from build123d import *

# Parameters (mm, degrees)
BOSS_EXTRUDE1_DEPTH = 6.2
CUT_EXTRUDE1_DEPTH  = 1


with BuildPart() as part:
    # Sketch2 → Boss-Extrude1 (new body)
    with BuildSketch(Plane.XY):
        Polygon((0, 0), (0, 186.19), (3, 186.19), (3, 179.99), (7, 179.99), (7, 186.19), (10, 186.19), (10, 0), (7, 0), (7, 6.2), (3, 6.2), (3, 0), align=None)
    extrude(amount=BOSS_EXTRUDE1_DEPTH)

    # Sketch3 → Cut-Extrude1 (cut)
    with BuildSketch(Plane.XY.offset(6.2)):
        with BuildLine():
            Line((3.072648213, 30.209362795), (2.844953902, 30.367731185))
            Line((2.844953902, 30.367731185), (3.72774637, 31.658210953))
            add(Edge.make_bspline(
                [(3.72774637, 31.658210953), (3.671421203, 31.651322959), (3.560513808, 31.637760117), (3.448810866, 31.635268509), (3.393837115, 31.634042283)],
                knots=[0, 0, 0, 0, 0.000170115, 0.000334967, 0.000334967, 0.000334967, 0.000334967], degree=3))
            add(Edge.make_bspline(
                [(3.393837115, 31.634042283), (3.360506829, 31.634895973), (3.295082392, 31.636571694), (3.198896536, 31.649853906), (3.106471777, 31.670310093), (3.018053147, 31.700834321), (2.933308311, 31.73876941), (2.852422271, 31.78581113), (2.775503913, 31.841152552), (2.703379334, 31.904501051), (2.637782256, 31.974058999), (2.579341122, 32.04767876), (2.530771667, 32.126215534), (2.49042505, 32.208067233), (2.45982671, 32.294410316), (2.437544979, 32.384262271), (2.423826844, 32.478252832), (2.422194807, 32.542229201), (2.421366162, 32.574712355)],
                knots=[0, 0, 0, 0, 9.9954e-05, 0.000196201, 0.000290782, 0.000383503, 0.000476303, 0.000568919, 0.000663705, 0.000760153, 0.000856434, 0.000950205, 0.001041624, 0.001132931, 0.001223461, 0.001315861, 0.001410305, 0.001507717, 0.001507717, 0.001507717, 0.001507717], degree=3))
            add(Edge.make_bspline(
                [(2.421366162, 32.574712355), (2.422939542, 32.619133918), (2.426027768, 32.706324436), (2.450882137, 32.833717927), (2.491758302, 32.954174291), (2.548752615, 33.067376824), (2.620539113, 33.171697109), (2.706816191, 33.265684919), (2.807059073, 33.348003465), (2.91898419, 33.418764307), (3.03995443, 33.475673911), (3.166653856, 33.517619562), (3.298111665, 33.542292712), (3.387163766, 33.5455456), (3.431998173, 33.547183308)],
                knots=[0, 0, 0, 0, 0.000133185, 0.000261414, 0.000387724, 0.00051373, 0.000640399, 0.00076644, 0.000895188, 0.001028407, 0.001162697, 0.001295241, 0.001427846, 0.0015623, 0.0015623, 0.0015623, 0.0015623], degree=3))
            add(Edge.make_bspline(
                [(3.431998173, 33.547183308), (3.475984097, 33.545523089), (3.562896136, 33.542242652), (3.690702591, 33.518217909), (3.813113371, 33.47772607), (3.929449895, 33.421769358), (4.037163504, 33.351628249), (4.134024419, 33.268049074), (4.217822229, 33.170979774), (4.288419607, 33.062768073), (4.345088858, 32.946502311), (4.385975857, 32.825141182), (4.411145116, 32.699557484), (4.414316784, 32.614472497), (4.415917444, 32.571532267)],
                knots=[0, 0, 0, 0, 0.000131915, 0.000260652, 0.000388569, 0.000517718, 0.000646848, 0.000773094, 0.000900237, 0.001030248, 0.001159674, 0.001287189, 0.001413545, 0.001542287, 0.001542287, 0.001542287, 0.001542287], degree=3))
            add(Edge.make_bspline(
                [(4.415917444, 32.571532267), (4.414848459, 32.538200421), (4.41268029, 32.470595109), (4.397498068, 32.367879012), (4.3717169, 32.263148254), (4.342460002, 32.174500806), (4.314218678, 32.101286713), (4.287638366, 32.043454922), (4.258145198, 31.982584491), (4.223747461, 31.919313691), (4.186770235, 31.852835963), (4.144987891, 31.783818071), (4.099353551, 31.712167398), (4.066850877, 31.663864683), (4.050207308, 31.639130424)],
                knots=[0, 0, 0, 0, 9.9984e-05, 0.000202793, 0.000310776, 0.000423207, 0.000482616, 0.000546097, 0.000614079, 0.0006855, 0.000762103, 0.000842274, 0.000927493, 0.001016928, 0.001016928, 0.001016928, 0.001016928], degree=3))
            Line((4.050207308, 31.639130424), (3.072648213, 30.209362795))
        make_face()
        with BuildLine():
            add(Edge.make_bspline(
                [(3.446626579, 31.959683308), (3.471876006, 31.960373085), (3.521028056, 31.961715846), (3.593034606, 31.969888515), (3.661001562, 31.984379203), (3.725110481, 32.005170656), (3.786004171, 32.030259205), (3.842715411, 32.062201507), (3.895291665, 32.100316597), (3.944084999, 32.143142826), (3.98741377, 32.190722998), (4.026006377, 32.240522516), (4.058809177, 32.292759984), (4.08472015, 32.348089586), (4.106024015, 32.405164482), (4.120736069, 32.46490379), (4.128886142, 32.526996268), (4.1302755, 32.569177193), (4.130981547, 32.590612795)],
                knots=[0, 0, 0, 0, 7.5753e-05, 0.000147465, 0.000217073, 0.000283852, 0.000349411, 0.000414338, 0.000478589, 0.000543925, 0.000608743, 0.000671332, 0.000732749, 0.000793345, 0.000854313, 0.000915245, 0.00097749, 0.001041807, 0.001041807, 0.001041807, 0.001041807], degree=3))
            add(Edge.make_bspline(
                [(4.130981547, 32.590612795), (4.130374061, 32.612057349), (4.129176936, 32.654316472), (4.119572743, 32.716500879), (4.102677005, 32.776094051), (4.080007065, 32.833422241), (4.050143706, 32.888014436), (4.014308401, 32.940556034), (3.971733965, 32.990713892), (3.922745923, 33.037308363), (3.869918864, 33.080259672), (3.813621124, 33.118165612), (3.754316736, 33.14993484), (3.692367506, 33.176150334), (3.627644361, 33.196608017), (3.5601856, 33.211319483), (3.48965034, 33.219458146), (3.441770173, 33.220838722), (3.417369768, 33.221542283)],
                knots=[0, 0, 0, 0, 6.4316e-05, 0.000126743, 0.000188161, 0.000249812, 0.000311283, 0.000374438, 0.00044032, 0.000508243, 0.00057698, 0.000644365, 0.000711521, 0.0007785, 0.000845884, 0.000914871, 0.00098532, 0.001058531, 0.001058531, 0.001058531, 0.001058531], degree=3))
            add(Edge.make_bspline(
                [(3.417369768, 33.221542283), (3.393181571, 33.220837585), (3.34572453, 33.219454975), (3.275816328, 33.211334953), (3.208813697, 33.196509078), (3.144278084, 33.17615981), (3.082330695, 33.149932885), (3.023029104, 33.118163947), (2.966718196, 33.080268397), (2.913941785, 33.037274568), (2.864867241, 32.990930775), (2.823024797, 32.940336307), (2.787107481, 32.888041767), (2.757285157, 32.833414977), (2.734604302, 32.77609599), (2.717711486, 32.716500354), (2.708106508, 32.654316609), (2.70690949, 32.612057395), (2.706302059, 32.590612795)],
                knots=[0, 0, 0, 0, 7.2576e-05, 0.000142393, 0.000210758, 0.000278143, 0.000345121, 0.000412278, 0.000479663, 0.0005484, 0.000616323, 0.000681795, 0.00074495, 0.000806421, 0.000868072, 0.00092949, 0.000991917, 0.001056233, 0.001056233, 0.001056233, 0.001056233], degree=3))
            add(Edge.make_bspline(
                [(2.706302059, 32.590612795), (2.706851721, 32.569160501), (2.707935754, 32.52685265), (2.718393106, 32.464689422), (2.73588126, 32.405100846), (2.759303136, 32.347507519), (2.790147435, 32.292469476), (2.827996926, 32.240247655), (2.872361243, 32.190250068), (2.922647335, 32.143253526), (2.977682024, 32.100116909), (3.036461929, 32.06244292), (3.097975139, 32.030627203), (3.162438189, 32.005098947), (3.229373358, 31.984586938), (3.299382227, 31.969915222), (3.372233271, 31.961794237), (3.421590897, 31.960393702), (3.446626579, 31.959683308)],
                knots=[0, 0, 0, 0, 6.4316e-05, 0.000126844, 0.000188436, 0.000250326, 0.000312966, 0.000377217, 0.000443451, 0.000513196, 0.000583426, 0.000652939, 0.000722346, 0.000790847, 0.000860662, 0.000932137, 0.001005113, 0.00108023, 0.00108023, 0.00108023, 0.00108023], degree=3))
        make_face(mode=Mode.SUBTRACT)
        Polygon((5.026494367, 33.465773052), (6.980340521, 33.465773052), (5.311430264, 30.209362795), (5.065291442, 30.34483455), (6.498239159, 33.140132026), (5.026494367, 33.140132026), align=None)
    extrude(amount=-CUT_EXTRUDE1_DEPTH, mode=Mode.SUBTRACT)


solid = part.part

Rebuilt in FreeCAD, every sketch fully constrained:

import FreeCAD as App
import Part
import Sketcher
Q = App.Units.Quantity

doc = App.newDocument("Part")
params = doc.addObject("Spreadsheet::Sheet", "Params")
for row, (alias, value) in enumerate([
    ("sketch1_width", "3 mm"),
    ("sketch1_width2", "4 mm"),
    ("sketch1_height", "6.2 mm"),
    ("sketch1_height2", "186.19 mm"),
    ("pad1_length", "6.2 mm"),
    ("pocket1_length", "1 mm"),
], start=1):
    params.set(f"A{row}", alias)
    params.set(f"B{row}", "=" + value)
    params.setAlias(f"B{row}", alias)

body = doc.addObject("PartDesign::Body", "Body")

# Sketch on XY plane
sketch1 = body.newObject("Sketcher::SketchObject", "Sketch")
sketch1.AttachmentSupport = (doc.getObject("XY_Plane"), [""])
sketch1.MapMode = "FlatFace"
sketch1.addGeometry(Part.LineSegment(App.Vector(0, 186.2, 0), App.Vector(0, 0, 0)), False)
sketch1.addGeometry(Part.LineSegment(App.Vector(0, 0, 0), App.Vector(3, 0, 0)), False)
sketch1.addGeometry(Part.LineSegment(App.Vector(3, 0, 0), App.Vector(3, 6.2, 0)), False)
sketch1.addGeometry(Part.LineSegment(App.Vector(3, 6.2, 0), App.Vector(7, 6.2, 0)), False)
sketch1.addGeometry(Part.LineSegment(App.Vector(7, 6.2, 0), App.Vector(7, 0, 0)), False)
sketch1.addGeometry(Part.LineSegment(App.Vector(7, 0, 0), App.Vector(10, 0, 0)), False)
sketch1.addGeometry(Part.LineSegment(App.Vector(10, 0, 0), App.Vector(10, 186.2, 0)), False)
sketch1.addGeometry(Part.LineSegment(App.Vector(10, 186.2, 0), App.Vector(7, 186.2, 0)), False)
sketch1.addGeometry(Part.LineSegment(App.Vector(7, 186.2, 0), App.Vector(7, 180, 0)), False)
sketch1.addGeometry(Part.LineSegment(App.Vector(7, 180, 0), App.Vector(3, 180, 0)), False)
sketch1.addGeometry(Part.LineSegment(App.Vector(3, 180, 0), App.Vector(3, 186.2, 0)), False)
sketch1.addGeometry(Part.LineSegment(App.Vector(3, 186.2, 0), App.Vector(0, 186.2, 0)), False)
sketch1.addConstraint(Sketcher.Constraint("Coincident", 0, 2, 1, 1))
sketch1.addConstraint(Sketcher.Constraint("Coincident", 1, 2, 2, 1))
sketch1.addConstraint(Sketcher.Constraint("Coincident", 2, 2, 3, 1))
sketch1.addConstraint(Sketcher.Constraint("Coincident", 3, 2, 4, 1))
sketch1.addConstraint(Sketcher.Constraint("Coincident", 4, 2, 5, 1))
sketch1.addConstraint(Sketcher.Constraint("Coincident", 5, 2, 6, 1))
sketch1.addConstraint(Sketcher.Constraint("Coincident", 6, 2, 7, 1))
sketch1.addConstraint(Sketcher.Constraint("Coincident", 7, 2, 8, 1))
sketch1.addConstraint(Sketcher.Constraint("Coincident", 8, 2, 9, 1))
sketch1.addConstraint(Sketcher.Constraint("Coincident", 9, 2, 10, 1))
sketch1.addConstraint(Sketcher.Constraint("Coincident", 10, 2, 11, 1))
sketch1.addConstraint(Sketcher.Constraint("Coincident", 11, 2, 0, 1))
sketch1.addConstraint(Sketcher.Constraint("Vertical", 0))
sketch1.addConstraint(Sketcher.Constraint("Horizontal", 1))
sketch1.addConstraint(Sketcher.Constraint("Vertical", 2))
sketch1.addConstraint(Sketcher.Constraint("Horizontal", 3))
sketch1.addConstraint(Sketcher.Constraint("Vertical", 4))
sketch1.addConstraint(Sketcher.Constraint("Horizontal", 5))
sketch1.addConstraint(Sketcher.Constraint("Vertical", 6))
sketch1.addConstraint(Sketcher.Constraint("Horizontal", 7))
sketch1.addConstraint(Sketcher.Constraint("Vertical", 8))
sketch1.addConstraint(Sketcher.Constraint("Horizontal", 9))
sketch1.addConstraint(Sketcher.Constraint("Vertical", 10))
sketch1.addConstraint(Sketcher.Constraint("Horizontal", 11))
sketch1.addConstraint(Sketcher.Constraint("Coincident", 0, 2, -1, 1))
sketch1.addConstraint(Sketcher.Constraint("PointOnObject", 4, 2, -1))
sketch1.addConstraint(Sketcher.Constraint("Horizontal", 7, 2, 10, 2))
sketch1.addConstraint(Sketcher.Constraint("Vertical", 4, 2, 7, 2))
sketch1.addConstraint(Sketcher.Constraint("Vertical", 2, 2, 9, 2))
sketch1.addConstraint(Sketcher.Constraint("Equal", 1, 5))
sketch1.addConstraint(Sketcher.Constraint("Equal", 4, 8))
sketch1.addConstraint(Sketcher.Constraint("DistanceX", 1, 1, 1, 2, Q("3 mm")))
sketch1.addConstraint(Sketcher.Constraint("DistanceX", 3, 1, 3, 2, Q("4 mm")))
sketch1.addConstraint(Sketcher.Constraint("DistanceY", 2, 1, 2, 2, Q("6.2 mm")))
sketch1.addConstraint(Sketcher.Constraint("DistanceY", 0, 2, 0, 1, Q("186.19 mm")))
sketch1.setExpression("Constraints[31]", "Params.sketch1_width")
sketch1.setExpression("Constraints[32]", "Params.sketch1_width2")
sketch1.setExpression("Constraints[33]", "Params.sketch1_height")
sketch1.setExpression("Constraints[34]", "Params.sketch1_height2")
pad1 = body.newObject("PartDesign::Pad", "Pad")
pad1.Profile = sketch1
pad1.setExpression("Length", "Params.pad1_length")

# Sketch on XY plane
sketch2 = body.newObject("Sketcher::SketchObject", "Sketch001")
sketch2.AttachmentSupport = (doc.getObject("XY_Plane"), [""])
sketch2.MapMode = "FlatFace"
sketch2.AttachmentOffset = App.Placement(App.Vector(0, 0, 6.2), App.Rotation())
sketch2.addGeometry(Part.LineSegment(App.Vector(2.844954, 30.367731, 0), App.Vector(3.072648, 30.209363, 0)), False)
sketch2.addGeometry(Part.LineSegment(App.Vector(3.072648, 30.209363, 0), App.Vector(4.050207, 31.63913, 0)), False)
sketch2.addGeometry(Part.BSplineCurve([App.Vector(4.415917, 32.571532, 0), App.Vector(4.414848, 32.5382, 0), App.Vector(4.41268, 32.470595, 0), App.Vector(4.397498, 32.367879, 0), App.Vector(4.371717, 32.263148, 0), App.Vector(4.34246, 32.174501, 0), App.Vector(4.314219, 32.101287, 0), App.Vector(4.287638, 32.043455, 0), App.Vector(4.258145, 31.982584, 0), App.Vector(4.223747, 31.919314, 0), App.Vector(4.18677, 31.852836, 0), App.Vector(4.144988, 31.783818, 0), App.Vector(4.099354, 31.712167, 0), App.Vector(4.066851, 31.663865, 0), App.Vector(4.050207, 31.63913, 0)], [4, 1, 1, 1, 1, 1, 1, 1, 1, 1, 1, 1, 4], [0, 0.000099984, 0.000202793, 0.000310776, 0.000423207, 0.000482616, 0.000546097, 0.000614079, 0.0006855, 0.000762103, 0.000842274, 0.000927493, 0.001016928], False, 3, [1, 1, 1, 1, 1, 1, 1, 1, 1, 1, 1, 1, 1, 1, 1], False), False)
sketch2.addGeometry(Part.BSplineCurve([App.Vector(3.431998, 33.547183, 0), App.Vector(3.475984, 33.545523, 0), App.Vector(3.562896, 33.542243, 0), App.Vector(3.690703, 33.518218, 0), App.Vector(3.813113, 33.477726, 0), App.Vector(3.92945, 33.421769, 0), App.Vector(4.037164, 33.351628, 0), App.Vector(4.134024, 33.268049, 0), App.Vector(4.217822, 33.17098, 0), App.Vector(4.28842, 33.062768, 0), App.Vector(4.345089, 32.946502, 0), App.Vector(4.385976, 32.825141, 0), App.Vector(4.411145, 32.699557, 0), App.Vector(4.414317, 32.614472, 0), App.Vector(4.415917, 32.571532, 0)], [4, 1, 1, 1, 1, 1, 1, 1, 1, 1, 1, 1, 4], [0, 0.000131915, 0.000260652, 0.000388569, 0.000517718, 0.000646848, 0.000773094, 0.000900237, 0.001030248, 0.001159674, 0.001287189, 0.001413545, 0.001542287], False, 3, [1, 1, 1, 1, 1, 1, 1, 1, 1, 1, 1, 1, 1, 1, 1], False), False)
sketch2.addGeometry(Part.BSplineCurve([App.Vector(2.421366, 32.574712, 0), App.Vector(2.42294, 32.619134, 0), App.Vector(2.426028, 32.706324, 0), App.Vector(2.450882, 32.833718, 0), App.Vector(2.491758, 32.954174, 0), App.Vector(2.548753, 33.067377, 0), App.Vector(2.620539, 33.171697, 0), App.Vector(2.706816, 33.265685, 0), App.Vector(2.807059, 33.348003, 0), App.Vector(2.918984, 33.418764, 0), App.Vector(3.039954, 33.475674, 0), App.Vector(3.166654, 33.51762, 0), App.Vector(3.298112, 33.542293, 0), App.Vector(3.387164, 33.545546, 0), App.Vector(3.431998, 33.547183, 0)], [4, 1, 1, 1, 1, 1, 1, 1, 1, 1, 1, 1, 4], [0, 0.000133185, 0.000261414, 0.000387724, 0.00051373, 0.000640399, 0.00076644, 0.000895188, 0.001028407, 0.001162697, 0.001295241, 0.001427846, 0.0015623], False, 3, [1, 1, 1, 1, 1, 1, 1, 1, 1, 1, 1, 1, 1, 1, 1], False), False)
sketch2.addGeometry(Part.BSplineCurve([App.Vector(3.393837, 31.634042, 0), App.Vector(3.360507, 31.634896, 0), App.Vector(3.295082, 31.636572, 0), App.Vector(3.198897, 31.649854, 0), App.Vector(3.106472, 31.67031, 0), App.Vector(3.018053, 31.700834, 0), App.Vector(2.933308, 31.738769, 0), App.Vector(2.852422, 31.785811, 0), App.Vector(2.775504, 31.841153, 0), App.Vector(2.703379, 31.904501, 0), App.Vector(2.637782, 31.974059, 0), App.Vector(2.579341, 32.047679, 0), App.Vector(2.530772, 32.126216, 0), App.Vector(2.490425, 32.208067, 0), App.Vector(2.459827, 32.29441, 0), App.Vector(2.437545, 32.384262, 0), App.Vector(2.423827, 32.478253, 0), App.Vector(2.422195, 32.542229, 0), App.Vector(2.421366, 32.574712, 0)], [4, 1, 1, 1, 1, 1, 1, 1, 1, 1, 1, 1, 1, 1, 1, 1, 4], [0, 0.000099954, 0.000196201, 0.000290782, 0.000383503, 0.000476303, 0.000568919, 0.000663705, 0.000760153, 0.000856434, 0.000950205, 0.001041624, 0.001132931, 0.001223461, 0.001315861, 0.001410305, 0.001507717], False, 3, [1, 1, 1, 1, 1, 1, 1, 1, 1, 1, 1, 1, 1, 1, 1, 1, 1, 1, 1], False), False)
sketch2.addGeometry(Part.BSplineCurve([App.Vector(3.727746, 31.658211, 0), App.Vector(3.671421, 31.651323, 0), App.Vector(3.560514, 31.63776, 0), App.Vector(3.448811, 31.635269, 0), App.Vector(3.393837, 31.634042, 0)], [4, 1, 4], [0, 0.000170115, 0.000334967], False, 3, [1, 1, 1, 1, 1], False), False)
sketch2.addGeometry(Part.LineSegment(App.Vector(3.727746, 31.658211, 0), App.Vector(2.844954, 30.367731, 0)), False)
sketch2.addGeometry(Part.BSplineCurve([App.Vector(2.706302, 32.590613, 0), App.Vector(2.706852, 32.569161, 0), App.Vector(2.707936, 32.526853, 0), App.Vector(2.718393, 32.464689, 0), App.Vector(2.735881, 32.405101, 0), App.Vector(2.759303, 32.347508, 0), App.Vector(2.790147, 32.292469, 0), App.Vector(2.827997, 32.240248, 0), App.Vector(2.872361, 32.19025, 0), App.Vector(2.922647, 32.143254, 0), App.Vector(2.977682, 32.100117, 0), App.Vector(3.036462, 32.062443, 0), App.Vector(3.097975, 32.030627, 0), App.Vector(3.162438, 32.005099, 0), App.Vector(3.229373, 31.984587, 0), App.Vector(3.299382, 31.969915, 0), App.Vector(3.372233, 31.961794, 0), App.Vector(3.421591, 31.960394, 0), App.Vector(3.446627, 31.959683, 0)], [4, 1, 1, 1, 1, 1, 1, 1, 1, 1, 1, 1, 1, 1, 1, 1, 4], [0, 0.000064316, 0.000126844, 0.000188436, 0.000250326, 0.000312966, 0.000377217, 0.000443451, 0.000513196, 0.000583426, 0.000652939, 0.000722346, 0.000790847, 0.000860662, 0.000932137, 0.001005113, 0.00108023], False, 3, [1, 1, 1, 1, 1, 1, 1, 1, 1, 1, 1, 1, 1, 1, 1, 1, 1, 1, 1], False), False)
sketch2.addGeometry(Part.BSplineCurve([App.Vector(3.41737, 33.221542, 0), App.Vector(3.393182, 33.220838, 0), App.Vector(3.345725, 33.219455, 0), App.Vector(3.275816, 33.211335, 0), App.Vector(3.208814, 33.196509, 0), App.Vector(3.144278, 33.17616, 0), App.Vector(3.082331, 33.149933, 0), App.Vector(3.023029, 33.118164, 0), App.Vector(2.966718, 33.080268, 0), App.Vector(2.913942, 33.037275, 0), App.Vector(2.864867, 32.990931, 0), App.Vector(2.823025, 32.940336, 0), App.Vector(2.787107, 32.888042, 0), App.Vector(2.757285, 32.833415, 0), App.Vector(2.734604, 32.776096, 0), App.Vector(2.717711, 32.7165, 0), App.Vector(2.708107, 32.654317, 0), App.Vector(2.706909, 32.612057, 0), App.Vector(2.706302, 32.590613, 0)], [4, 1, 1, 1, 1, 1, 1, 1, 1, 1, 1, 1, 1, 1, 1, 1, 4], [0, 0.000072576, 0.000142393, 0.000210758, 0.000278143, 0.000345121, 0.000412278, 0.000479663, 0.0005484, 0.000616323, 0.000681795, 0.00074495, 0.000806421, 0.000868072, 0.00092949, 0.000991917, 0.001056233], False, 3, [1, 1, 1, 1, 1, 1, 1, 1, 1, 1, 1, 1, 1, 1, 1, 1, 1, 1, 1], False), False)
sketch2.addGeometry(Part.BSplineCurve([App.Vector(4.130982, 32.590613, 0), App.Vector(4.130374, 32.612057, 0), App.Vector(4.129177, 32.654316, 0), App.Vector(4.119573, 32.716501, 0), App.Vector(4.102677, 32.776094, 0), App.Vector(4.080007, 32.833422, 0), App.Vector(4.050144, 32.888014, 0), App.Vector(4.014308, 32.940556, 0), App.Vector(3.971734, 32.990714, 0), App.Vector(3.922746, 33.037308, 0), App.Vector(3.869919, 33.08026, 0), App.Vector(3.813621, 33.118166, 0), App.Vector(3.754317, 33.149935, 0), App.Vector(3.692368, 33.17615, 0), App.Vector(3.627644, 33.196608, 0), App.Vector(3.560186, 33.211319, 0), App.Vector(3.48965, 33.219458, 0), App.Vector(3.44177, 33.220839, 0), App.Vector(3.41737, 33.221542, 0)], [4, 1, 1, 1, 1, 1, 1, 1, 1, 1, 1, 1, 1, 1, 1, 1, 4], [0, 0.000064316, 0.000126743, 0.000188161, 0.000249812, 0.000311283, 0.000374438, 0.00044032, 0.000508243, 0.00057698, 0.000644365, 0.000711521, 0.0007785, 0.000845884, 0.000914871, 0.00098532, 0.001058531], False, 3, [1, 1, 1, 1, 1, 1, 1, 1, 1, 1, 1, 1, 1, 1, 1, 1, 1, 1, 1], False), False)
sketch2.addGeometry(Part.BSplineCurve([App.Vector(3.446627, 31.959683, 0), App.Vector(3.471876, 31.960373, 0), App.Vector(3.521028, 31.961716, 0), App.Vector(3.593035, 31.969889, 0), App.Vector(3.661002, 31.984379, 0), App.Vector(3.72511, 32.005171, 0), App.Vector(3.786004, 32.030259, 0), App.Vector(3.842715, 32.062202, 0), App.Vector(3.895292, 32.100317, 0), App.Vector(3.944085, 32.143143, 0), App.Vector(3.987414, 32.190723, 0), App.Vector(4.026006, 32.240523, 0), App.Vector(4.058809, 32.29276, 0), App.Vector(4.08472, 32.34809, 0), App.Vector(4.106024, 32.405164, 0), App.Vector(4.120736, 32.464904, 0), App.Vector(4.128886, 32.526996, 0), App.Vector(4.130275, 32.569177, 0), App.Vector(4.130982, 32.590613, 0)], [4, 1, 1, 1, 1, 1, 1, 1, 1, 1, 1, 1, 1, 1, 1, 1, 4], [0, 0.000075753, 0.000147465, 0.000217073, 0.000283852, 0.000349411, 0.000414338, 0.000478589, 0.000543925, 0.000608743, 0.000671332, 0.000732749, 0.000793345, 0.000854313, 0.000915245, 0.00097749, 0.001041807], False, 3, [1, 1, 1, 1, 1, 1, 1, 1, 1, 1, 1, 1, 1, 1, 1, 1, 1, 1, 1], False), False)
sketch2.addGeometry(Part.LineSegment(App.Vector(6.980341, 33.465773, 0), App.Vector(5.026494, 33.465773, 0)), False)
sketch2.addGeometry(Part.LineSegment(App.Vector(5.026494, 33.465773, 0), App.Vector(5.026494, 33.140132, 0)), False)
sketch2.addGeometry(Part.LineSegment(App.Vector(5.026494, 33.140132, 0), App.Vector(6.498239, 33.140132, 0)), False)
sketch2.addGeometry(Part.LineSegment(App.Vector(6.498239, 33.140132, 0), App.Vector(5.065291, 30.344835, 0)), False)
sketch2.addGeometry(Part.LineSegment(App.Vector(5.065291, 30.344835, 0), App.Vector(5.31143, 30.209363, 0)), False)
sketch2.addGeometry(Part.LineSegment(App.Vector(5.31143, 30.209363, 0), App.Vector(6.980341, 33.465773, 0)), False)
sketch2.addConstraint(Sketcher.Constraint("Block", 2))
sketch2.addConstraint(Sketcher.Constraint("Block", 3))
sketch2.addConstraint(Sketcher.Constraint("Block", 4))
sketch2.addConstraint(Sketcher.Constraint("Block", 5))
sketch2.addConstraint(Sketcher.Constraint("Block", 6))
sketch2.addConstraint(Sketcher.Constraint("Block", 8))
sketch2.addConstraint(Sketcher.Constraint("Block", 9))
sketch2.addConstraint(Sketcher.Constraint("Block", 10))
sketch2.addConstraint(Sketcher.Constraint("Block", 11))
sketch2.addConstraint(Sketcher.Constraint("Coincident", 0, 2, 1, 1))
sketch2.addConstraint(Sketcher.Constraint("Coincident", 1, 2, 2, 2))
sketch2.addConstraint(Sketcher.Constraint("Coincident", 6, 1, 7, 1))
sketch2.addConstraint(Sketcher.Constraint("Coincident", 7, 2, 0, 1))
sketch2.addConstraint(Sketcher.Constraint("Coincident", 12, 2, 13, 1))
sketch2.addConstraint(Sketcher.Constraint("Coincident", 13, 2, 14, 1))
sketch2.addConstraint(Sketcher.Constraint("Coincident", 14, 2, 15, 1))
sketch2.addConstraint(Sketcher.Constraint("Coincident", 15, 2, 16, 1))
sketch2.addConstraint(Sketcher.Constraint("Coincident", 16, 2, 17, 1))
sketch2.addConstraint(Sketcher.Constraint("Coincident", 17, 2, 12, 1))
sketch2.addConstraint(Sketcher.Constraint("Horizontal", 12))
sketch2.addConstraint(Sketcher.Constraint("Vertical", 13))
sketch2.addConstraint(Sketcher.Constraint("Horizontal", 14))
sketch2.addConstraint(Sketcher.Constraint("Horizontal", 0, 2, 16, 2))
sketch2.addConstraint(Sketcher.Constraint("DistanceY", 1, 2, 13, 2, Q("1.501002 mm")))
sketch2.addConstraint(Sketcher.Constraint("DistanceY", 13, 2, 13, 1, Q("0.325641 mm")))
sketch2.addConstraint(Sketcher.Constraint("DistanceY", 7, 2, 1, 2, Q("1.271399 mm")))
sketch2.addConstraint(Sketcher.Constraint("DistanceX", 14, 2, 17, 2, Q("0.482101 mm")))
sketch2.addConstraint(Sketcher.Constraint("Distance", 1, Q("1.73201 mm")))
sketch2.addConstraint(Sketcher.Constraint("Distance", 7, Q("1.563541 mm")))
sketch2.addConstraint(Sketcher.Constraint("DistanceX", 12, 2, 12, 1, Q("1.953846 mm")))
sketch2.addConstraint(Sketcher.Constraint("DistanceX", -1, 1, 0, 2, Q("3.072648 mm")))
sketch2.addConstraint(Sketcher.Constraint("DistanceX", -1, 1, 14, 2, Q("6.498239 mm")))
sketch2.addConstraint(Sketcher.Constraint("DistanceX", -1, 1, 15, 2, Q("5.065291 mm")))
sketch2.addConstraint(Sketcher.Constraint("DistanceX", -1, 1, 16, 2, Q("5.31143 mm")))
sketch2.addConstraint(Sketcher.Constraint("DistanceY", 0, 2, 15, 2, Q("0.135472 mm")))
pocket1 = body.newObject("PartDesign::Pocket", "Pocket")
pocket1.Profile = sketch2
pocket1.setExpression("Length", "Params.pocket1_length")

doc.recompute()
